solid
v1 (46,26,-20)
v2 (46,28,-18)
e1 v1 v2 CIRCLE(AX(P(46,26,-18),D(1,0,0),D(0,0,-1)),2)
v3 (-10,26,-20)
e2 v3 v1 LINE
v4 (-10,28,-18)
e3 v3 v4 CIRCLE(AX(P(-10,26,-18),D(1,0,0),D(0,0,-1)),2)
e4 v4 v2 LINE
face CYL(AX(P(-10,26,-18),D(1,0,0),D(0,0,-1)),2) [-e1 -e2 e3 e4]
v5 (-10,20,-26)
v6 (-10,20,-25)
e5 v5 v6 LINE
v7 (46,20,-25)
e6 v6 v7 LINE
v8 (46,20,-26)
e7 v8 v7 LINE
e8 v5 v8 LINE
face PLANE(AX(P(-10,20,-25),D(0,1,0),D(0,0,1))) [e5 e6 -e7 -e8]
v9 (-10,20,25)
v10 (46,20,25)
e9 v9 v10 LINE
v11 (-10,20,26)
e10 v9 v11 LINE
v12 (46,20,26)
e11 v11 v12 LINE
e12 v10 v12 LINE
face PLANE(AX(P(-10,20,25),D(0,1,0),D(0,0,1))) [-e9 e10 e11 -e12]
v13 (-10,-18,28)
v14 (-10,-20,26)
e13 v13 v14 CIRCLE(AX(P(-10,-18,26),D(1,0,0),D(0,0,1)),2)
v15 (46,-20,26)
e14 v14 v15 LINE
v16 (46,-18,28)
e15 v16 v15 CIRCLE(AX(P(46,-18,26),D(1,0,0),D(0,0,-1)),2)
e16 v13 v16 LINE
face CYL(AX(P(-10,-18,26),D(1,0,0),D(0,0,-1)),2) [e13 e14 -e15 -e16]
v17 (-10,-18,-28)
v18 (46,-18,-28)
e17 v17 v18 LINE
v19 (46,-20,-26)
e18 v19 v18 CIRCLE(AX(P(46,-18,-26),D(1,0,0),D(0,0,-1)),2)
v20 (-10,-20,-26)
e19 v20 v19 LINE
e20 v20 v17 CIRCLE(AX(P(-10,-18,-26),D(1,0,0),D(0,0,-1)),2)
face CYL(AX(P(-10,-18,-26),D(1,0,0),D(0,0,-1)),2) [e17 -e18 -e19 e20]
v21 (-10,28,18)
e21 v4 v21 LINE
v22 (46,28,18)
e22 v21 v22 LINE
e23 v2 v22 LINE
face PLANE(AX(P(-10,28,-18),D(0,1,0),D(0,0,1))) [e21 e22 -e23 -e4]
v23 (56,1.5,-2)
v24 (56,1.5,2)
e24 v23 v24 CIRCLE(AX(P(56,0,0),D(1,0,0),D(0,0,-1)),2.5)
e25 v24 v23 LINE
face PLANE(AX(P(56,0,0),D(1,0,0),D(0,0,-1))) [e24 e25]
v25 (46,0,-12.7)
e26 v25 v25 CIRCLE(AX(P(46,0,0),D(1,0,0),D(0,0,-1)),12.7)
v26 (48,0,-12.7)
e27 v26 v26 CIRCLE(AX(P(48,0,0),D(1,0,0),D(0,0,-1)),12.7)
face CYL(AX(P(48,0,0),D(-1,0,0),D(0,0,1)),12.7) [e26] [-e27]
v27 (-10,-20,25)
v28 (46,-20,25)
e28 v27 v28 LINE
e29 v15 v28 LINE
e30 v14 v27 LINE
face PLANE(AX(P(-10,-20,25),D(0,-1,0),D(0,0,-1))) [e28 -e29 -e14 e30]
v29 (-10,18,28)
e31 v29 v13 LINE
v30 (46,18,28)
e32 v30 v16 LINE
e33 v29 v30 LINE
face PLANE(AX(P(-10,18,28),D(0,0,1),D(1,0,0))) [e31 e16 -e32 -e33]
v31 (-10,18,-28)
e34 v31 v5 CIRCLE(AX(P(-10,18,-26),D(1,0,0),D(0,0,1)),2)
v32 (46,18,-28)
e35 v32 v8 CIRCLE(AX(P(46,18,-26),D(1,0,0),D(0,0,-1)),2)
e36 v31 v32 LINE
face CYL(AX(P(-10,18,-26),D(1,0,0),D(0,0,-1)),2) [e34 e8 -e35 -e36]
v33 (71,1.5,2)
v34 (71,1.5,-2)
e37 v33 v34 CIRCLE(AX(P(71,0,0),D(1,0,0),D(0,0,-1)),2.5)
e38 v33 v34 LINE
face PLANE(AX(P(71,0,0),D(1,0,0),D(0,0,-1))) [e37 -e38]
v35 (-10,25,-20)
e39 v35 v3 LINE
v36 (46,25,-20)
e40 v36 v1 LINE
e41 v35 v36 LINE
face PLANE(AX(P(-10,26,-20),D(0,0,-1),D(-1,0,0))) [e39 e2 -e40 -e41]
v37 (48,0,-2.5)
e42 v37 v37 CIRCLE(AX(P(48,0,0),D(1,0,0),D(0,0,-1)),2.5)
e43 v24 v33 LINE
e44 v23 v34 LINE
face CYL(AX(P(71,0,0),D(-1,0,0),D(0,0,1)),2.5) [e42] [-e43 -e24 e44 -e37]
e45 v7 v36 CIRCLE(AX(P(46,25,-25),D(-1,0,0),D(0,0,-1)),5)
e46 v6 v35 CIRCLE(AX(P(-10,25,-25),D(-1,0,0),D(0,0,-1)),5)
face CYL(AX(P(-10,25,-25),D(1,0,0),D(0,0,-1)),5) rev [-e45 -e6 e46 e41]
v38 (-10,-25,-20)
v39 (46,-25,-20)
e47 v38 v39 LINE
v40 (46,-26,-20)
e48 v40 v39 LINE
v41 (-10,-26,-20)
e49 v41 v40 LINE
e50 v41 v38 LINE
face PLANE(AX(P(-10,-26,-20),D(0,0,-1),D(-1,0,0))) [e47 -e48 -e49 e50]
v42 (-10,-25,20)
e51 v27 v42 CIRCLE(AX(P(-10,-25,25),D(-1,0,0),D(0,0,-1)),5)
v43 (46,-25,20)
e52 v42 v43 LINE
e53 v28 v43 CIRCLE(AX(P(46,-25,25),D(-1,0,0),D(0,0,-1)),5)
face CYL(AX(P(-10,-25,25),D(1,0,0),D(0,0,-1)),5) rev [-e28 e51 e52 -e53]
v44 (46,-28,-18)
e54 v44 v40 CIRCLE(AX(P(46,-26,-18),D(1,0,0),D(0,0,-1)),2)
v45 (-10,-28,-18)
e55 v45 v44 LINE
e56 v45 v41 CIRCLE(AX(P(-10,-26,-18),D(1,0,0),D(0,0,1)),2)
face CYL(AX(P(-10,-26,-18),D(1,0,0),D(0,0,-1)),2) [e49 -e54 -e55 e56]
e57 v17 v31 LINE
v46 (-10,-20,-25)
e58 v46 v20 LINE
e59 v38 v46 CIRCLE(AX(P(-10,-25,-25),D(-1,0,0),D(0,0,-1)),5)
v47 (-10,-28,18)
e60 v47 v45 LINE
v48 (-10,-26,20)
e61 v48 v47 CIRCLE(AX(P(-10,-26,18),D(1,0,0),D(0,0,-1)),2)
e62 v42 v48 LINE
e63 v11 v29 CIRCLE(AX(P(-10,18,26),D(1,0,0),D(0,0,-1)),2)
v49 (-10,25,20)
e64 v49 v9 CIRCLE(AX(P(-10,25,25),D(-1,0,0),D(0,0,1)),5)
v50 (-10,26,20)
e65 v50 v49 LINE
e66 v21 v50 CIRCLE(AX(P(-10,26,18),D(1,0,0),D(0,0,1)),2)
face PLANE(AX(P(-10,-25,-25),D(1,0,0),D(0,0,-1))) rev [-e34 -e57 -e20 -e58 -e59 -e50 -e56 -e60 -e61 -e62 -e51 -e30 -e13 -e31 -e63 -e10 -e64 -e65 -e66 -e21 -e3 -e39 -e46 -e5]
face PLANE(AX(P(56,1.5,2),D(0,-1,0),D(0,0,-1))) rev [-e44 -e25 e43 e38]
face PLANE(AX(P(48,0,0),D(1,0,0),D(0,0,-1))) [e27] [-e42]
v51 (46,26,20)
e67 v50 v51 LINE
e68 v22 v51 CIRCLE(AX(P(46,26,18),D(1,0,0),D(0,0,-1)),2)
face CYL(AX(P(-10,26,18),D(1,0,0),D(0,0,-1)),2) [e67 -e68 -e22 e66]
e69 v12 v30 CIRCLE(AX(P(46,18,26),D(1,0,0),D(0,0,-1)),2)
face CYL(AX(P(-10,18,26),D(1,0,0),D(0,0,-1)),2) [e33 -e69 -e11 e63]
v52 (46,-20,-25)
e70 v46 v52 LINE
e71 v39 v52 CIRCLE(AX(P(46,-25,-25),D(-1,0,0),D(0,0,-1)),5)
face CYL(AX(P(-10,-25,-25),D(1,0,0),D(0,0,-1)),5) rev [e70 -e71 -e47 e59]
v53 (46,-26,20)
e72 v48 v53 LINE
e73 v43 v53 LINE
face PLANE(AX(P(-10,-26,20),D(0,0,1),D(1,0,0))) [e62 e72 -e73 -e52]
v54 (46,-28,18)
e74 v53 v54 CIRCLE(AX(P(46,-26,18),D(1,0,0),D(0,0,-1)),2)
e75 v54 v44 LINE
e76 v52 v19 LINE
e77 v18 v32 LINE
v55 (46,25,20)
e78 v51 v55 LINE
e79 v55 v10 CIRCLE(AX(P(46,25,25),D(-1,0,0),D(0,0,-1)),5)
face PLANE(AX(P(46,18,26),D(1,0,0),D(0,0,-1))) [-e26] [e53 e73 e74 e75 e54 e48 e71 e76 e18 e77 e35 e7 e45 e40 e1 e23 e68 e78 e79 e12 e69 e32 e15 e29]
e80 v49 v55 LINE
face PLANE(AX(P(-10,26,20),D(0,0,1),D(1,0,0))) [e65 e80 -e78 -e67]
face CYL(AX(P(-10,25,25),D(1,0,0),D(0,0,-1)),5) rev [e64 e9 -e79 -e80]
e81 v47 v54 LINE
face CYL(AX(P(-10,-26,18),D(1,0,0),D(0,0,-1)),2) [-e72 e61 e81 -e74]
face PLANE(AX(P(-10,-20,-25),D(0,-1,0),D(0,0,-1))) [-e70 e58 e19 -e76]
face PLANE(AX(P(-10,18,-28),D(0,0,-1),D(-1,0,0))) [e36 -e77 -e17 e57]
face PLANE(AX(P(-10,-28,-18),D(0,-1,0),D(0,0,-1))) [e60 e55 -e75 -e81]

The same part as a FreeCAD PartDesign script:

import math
import FreeCAD as App
import Part
import Sketcher
Q = App.Units.Quantity

doc = App.newDocument("Part")
body = doc.addObject("PartDesign::Body", "Body")

sketch1 = body.newObject("Sketcher::SketchObject", "Sketch")
sketch1.AttachmentSupport = (doc.getObject("YZ_Plane"), [""])
sketch1.MapMode = "FlatFace"
sketch1.addGeometry([
    Part.LineSegment(App.Vector(26, 20, 0), App.Vector(25, 20, 0)),
    Part.ArcOfCircle(Part.Circle(App.Vector(25, 25, 0), App.Vector(0, 0, 1), 5), math.radians(180), math.radians(270)),
    Part.LineSegment(App.Vector(20, 25, 0), App.Vector(20, 26, 0)),
    Part.ArcOfCircle(Part.Circle(App.Vector(18, 26, 0), App.Vector(0, 0, 1), 2), math.radians(0), math.radians(90)),
    Part.LineSegment(App.Vector(18, 28, 0), App.Vector(-18, 28, 0)),
    Part.ArcOfCircle(Part.Circle(App.Vector(-18, 26, 0), App.Vector(0, 0, 1), 2), math.radians(90), math.radians(180)),
    Part.LineSegment(App.Vector(-20, 26, 0), App.Vector(-20, 25, 0)),
    Part.ArcOfCircle(Part.Circle(App.Vector(-25, 25, 0), App.Vector(0, 0, 1), 5), math.radians(-90), math.radians(0)),
    Part.LineSegment(App.Vector(-25, 20, 0), App.Vector(-26, 20, 0)),
    Part.ArcOfCircle(Part.Circle(App.Vector(-26, 18, 0), App.Vector(0, 0, 1), 2), math.radians(90), math.radians(180)),
    Part.LineSegment(App.Vector(-28, 18, 0), App.Vector(-28, -18, 0)),
    Part.ArcOfCircle(Part.Circle(App.Vector(-26, -18, 0), App.Vector(0, 0, 1), 2), math.radians(-180), math.radians(-90)),
    Part.LineSegment(App.Vector(-26, -20, 0), App.Vector(-25, -20, 0)),
    Part.ArcOfCircle(Part.Circle(App.Vector(-25, -25, 0), App.Vector(0, 0, 1), 5), math.radians(0), math.radians(90)),
    Part.LineSegment(App.Vector(-20, -25, 0), App.Vector(-20, -26, 0)),
    Part.ArcOfCircle(Part.Circle(App.Vector(-18, -26, 0), App.Vector(0, 0, 1), 2), math.radians(-180), math.radians(-90)),
    Part.LineSegment(App.Vector(-18, -28, 0), App.Vector(18, -28, 0)),
    Part.ArcOfCircle(Part.Circle(App.Vector(18, -26, 0), App.Vector(0, 0, 1), 2), math.radians(-90), math.radians(0)),
    Part.LineSegment(App.Vector(20, -26, 0), App.Vector(20, -25, 0)),
    Part.ArcOfCircle(Part.Circle(App.Vector(25, -25, 0), App.Vector(0, 0, 1), 5), math.radians(90), math.radians(180)),
    Part.LineSegment(App.Vector(25, -20, 0), App.Vector(26, -20, 0)),
    Part.ArcOfCircle(Part.Circle(App.Vector(26, -18, 0), App.Vector(0, 0, 1), 2), math.radians(-90), math.radians(0)),
    Part.LineSegment(App.Vector(28, -18, 0), App.Vector(28, 18, 0)),
    Part.ArcOfCircle(Part.Circle(App.Vector(26, 18, 0), App.Vector(0, 0, 1), 2), math.radians(0), math.radians(90)),
], False)
sketch1.addConstraint([
    Sketcher.Constraint("Tangent", 0, 2, 1, 2),
    Sketcher.Constraint("Tangent", 1, 1, 2, 1),
    Sketcher.Constraint("Tangent", 2, 2, 3, 1),
    Sketcher.Constraint("Tangent", 3, 2, 4, 1),
    Sketcher.Constraint("Tangent", 4, 2, 5, 1),
    Sketcher.Constraint("Tangent", 5, 2, 6, 1),
    Sketcher.Constraint("Tangent", 6, 2, 7, 2),
    Sketcher.Constraint("Tangent", 7, 1, 8, 1),
    Sketcher.Constraint("Tangent", 8, 2, 9, 1),
    Sketcher.Constraint("Tangent", 9, 2, 10, 1),
    Sketcher.Constraint("Tangent", 10, 2, 11, 1),
    Sketcher.Constraint("Tangent", 11, 2, 12, 1),
    Sketcher.Constraint("Tangent", 12, 2, 13, 2),
    Sketcher.Constraint("Tangent", 13, 1, 14, 1),
    Sketcher.Constraint("Tangent", 14, 2, 15, 1),
    Sketcher.Constraint("Tangent", 15, 2, 16, 1),
    Sketcher.Constraint("Tangent", 16, 2, 17, 1),
    Sketcher.Constraint("Tangent", 17, 2, 18, 1),
    Sketcher.Constraint("Tangent", 18, 2, 19, 2),
    Sketcher.Constraint("Tangent", 19, 1, 20, 1),
    Sketcher.Constraint("Tangent", 20, 2, 21, 1),
    Sketcher.Constraint("Tangent", 21, 2, 22, 1),
    Sketcher.Constraint("Tangent", 22, 2, 23, 1),
    Sketcher.Constraint("Tangent", 23, 2, 0, 1),
    Sketcher.Constraint("Horizontal", 0),
    Sketcher.Constraint("Vertical", 2),
    Sketcher.Constraint("Horizontal", 4),
    Sketcher.Constraint("Vertical", 6),
    Sketcher.Constraint("Horizontal", 8),
    Sketcher.Constraint("Vertical", 10),
    Sketcher.Constraint("Horizontal", 12),
    Sketcher.Constraint("Vertical", 14),
    Sketcher.Constraint("Horizontal", 16),
    Sketcher.Constraint("Vertical", 18),
    Sketcher.Constraint("Horizontal", 20),
    Sketcher.Constraint("Vertical", 22),
    Sketcher.Constraint("Equal", 3, 5),
    Sketcher.Constraint("Equal", 1, 7),
    Sketcher.Constraint("Equal", 5, 9),
    Sketcher.Constraint("Equal", 9, 11),
    Sketcher.Constraint("Equal", 7, 13),
    Sketcher.Constraint("Equal", 11, 15),
    Sketcher.Constraint("Equal", 15, 17),
    Sketcher.Constraint("Equal", 13, 19),
    Sketcher.Constraint("Equal", 17, 21),
    Sketcher.Constraint("Equal", 21, 23),
    Sketcher.Constraint("Symmetric", 1, 3, 13, 3, -1, 1),
    Sketcher.Constraint("Symmetric", 5, 3, 17, 3, -1, 1),
    Sketcher.Constraint("Symmetric", 9, 3, 21, 3, -1, 1),
    Sketcher.Constraint("Symmetric", 1, 3, 7, 3, -2),
    Sketcher.Constraint("Equal", 20, 2),
    Sketcher.Constraint("Equal", 16, 10),
    Sketcher.Constraint("Radius", 1, Q("5 mm")),
    Sketcher.Constraint("Radius", 3, Q("2 mm")),
    Sketcher.Constraint("DistanceX", 0, 2, 0, 1, Q("1 mm")),
    Sketcher.Constraint("DistanceX", 4, 2, 4, 1, Q("36 mm")),
])
pad1 = body.newObject("PartDesign::Pad", "Pad")
pad1.Profile = sketch1
pad1.Length = 10
pad1.Reversed = True

sketch2 = body.newObject("Sketcher::SketchObject", "Sketch001")
sketch2.AttachmentSupport = (doc.getObject("YZ_Plane"), [""])
sketch2.MapMode = "FlatFace"
sketch2.AttachmentOffset = App.Placement(App.Vector(0, 0, 36), App.Rotation())
sketch2.addGeometry([
    Part.LineSegment(App.Vector(-26, -20, 0), App.Vector(-25, -20, 0)),
    Part.ArcOfCircle(Part.Circle(App.Vector(-25, -25, 0), App.Vector(0, 0, 1), 5), math.radians(0), math.radians(90)),
    Part.LineSegment(App.Vector(-20, -25, 0), App.Vector(-20, -26, 0)),
    Part.ArcOfCircle(Part.Circle(App.Vector(-18, -26, 0), App.Vector(0, 0, 1), 2), math.radians(-180), math.radians(-90)),
    Part.LineSegment(App.Vector(-18, -28, 0), App.Vector(18, -28, 0)),
    Part.ArcOfCircle(Part.Circle(App.Vector(18, -26, 0), App.Vector(0, 0, 1), 2), math.radians(-90), math.radians(0)),
    Part.LineSegment(App.Vector(20, -26, 0), App.Vector(20, -25, 0)),
    Part.ArcOfCircle(Part.Circle(App.Vector(25, -25, 0), App.Vector(0, 0, 1), 5), math.radians(90), math.radians(180)),
    Part.LineSegment(App.Vector(25, -20, 0), App.Vector(26, -20, 0)),
    Part.ArcOfCircle(Part.Circle(App.Vector(26, -18, 0), App.Vector(0, 0, 1), 2), math.radians(-90), math.radians(0)),
    Part.LineSegment(App.Vector(28, -18, 0), App.Vector(28, 18, 0)),
    Part.ArcOfCircle(Part.Circle(App.Vector(26, 18, 0), App.Vector(0, 0, 1), 2), math.radians(0), math.radians(90)),
    Part.LineSegment(App.Vector(26, 20, 0), App.Vector(25, 20, 0)),
    Part.ArcOfCircle(Part.Circle(App.Vector(25, 25, 0), App.Vector(0, 0, 1), 5), math.radians(180), math.radians(270)),
    Part.LineSegment(App.Vector(20, 25, 0), App.Vector(20, 26, 0)),
    Part.ArcOfCircle(Part.Circle(App.Vector(18, 26, 0), App.Vector(0, 0, 1), 2), math.radians(0), math.radians(90)),
    Part.LineSegment(App.Vector(18, 28, 0), App.Vector(-18, 28, 0)),
    Part.ArcOfCircle(Part.Circle(App.Vector(-18, 26, 0), App.Vector(0, 0, 1), 2), math.radians(90), math.radians(180)),
    Part.LineSegment(App.Vector(-20, 26, 0), App.Vector(-20, 25, 0)),
    Part.ArcOfCircle(Part.Circle(App.Vector(-25, 25, 0), App.Vector(0, 0, 1), 5), math.radians(-90), math.radians(0)),
    Part.LineSegment(App.Vector(-25, 20, 0), App.Vector(-26, 20, 0)),
    Part.ArcOfCircle(Part.Circle(App.Vector(-26, 18, 0), App.Vector(0, 0, 1), 2), math.radians(90), math.radians(180)),
    Part.LineSegment(App.Vector(-28, 18, 0), App.Vector(-28, -18, 0)),
    Part.ArcOfCircle(Part.Circle(App.Vector(-26, -18, 0), App.Vector(0, 0, 1), 2), math.radians(-180), math.radians(-90)),
], False)
sketch2.addConstraint([
    Sketcher.Constraint("Tangent", 0, 2, 1, 2),
    Sketcher.Constraint("Tangent", 1, 1, 2, 1),
    Sketcher.Constraint("Tangent", 2, 2, 3, 1),
    Sketcher.Constraint("Tangent", 3, 2, 4, 1),
    Sketcher.Constraint("Tangent", 4, 2, 5, 1),
    Sketcher.Constraint("Tangent", 5, 2, 6, 1),
    Sketcher.Constraint("Tangent", 6, 2, 7, 2),
    Sketcher.Constraint("Tangent", 7, 1, 8, 1),
    Sketcher.Constraint("Tangent", 8, 2, 9, 1),
    Sketcher.Constraint("Tangent", 9, 2, 10, 1),
    Sketcher.Constraint("Tangent", 10, 2, 11, 1),
    Sketcher.Constraint("Tangent", 11, 2, 12, 1),
    Sketcher.Constraint("Tangent", 12, 2, 13, 2),
    Sketcher.Constraint("Tangent", 13, 1, 14, 1),
    Sketcher.Constraint("Tangent", 14, 2, 15, 1),
    Sketcher.Constraint("Tangent", 15, 2, 16, 1),
    Sketcher.Constraint("Tangent", 16, 2, 17, 1),
    Sketcher.Constraint("Tangent", 17, 2, 18, 1),
    Sketcher.Constraint("Tangent", 18, 2, 19, 2),
    Sketcher.Constraint("Tangent", 19, 1, 20, 1),
    Sketcher.Constraint("Tangent", 20, 2, 21, 1),
    Sketcher.Constraint("Tangent", 21, 2, 22, 1),
    Sketcher.Constraint("Tangent", 22, 2, 23, 1),
    Sketcher.Constraint("Tangent", 23, 2, 0, 1),
    Sketcher.Constraint("Horizontal", 0),
    Sketcher.Constraint("Vertical", 2),
    Sketcher.Constraint("Horizontal", 4),
    Sketcher.Constraint("Vertical", 6),
    Sketcher.Constraint("Horizontal", 8),
    Sketcher.Constraint("Vertical", 10),
    Sketcher.Constraint("Horizontal", 12),
    Sketcher.Constraint("Vertical", 14),
    Sketcher.Constraint("Horizontal", 16),
    Sketcher.Constraint("Vertical", 18),
    Sketcher.Constraint("Horizontal", 20),
    Sketcher.Constraint("Vertical", 22),
    Sketcher.Constraint("Equal", 3, 5),
    Sketcher.Constraint("Equal", 1, 7),
    Sketcher.Constraint("Equal", 5, 9),
    Sketcher.Constraint("Equal", 9, 11),
    Sketcher.Constraint("Equal", 7, 13),
    Sketcher.Constraint("Equal", 11, 15),
    Sketcher.Constraint("Equal", 15, 17),
    Sketcher.Constraint("Equal", 13, 19),
    Sketcher.Constraint("Equal", 17, 21),
    Sketcher.Constraint("Equal", 21, 23),
    Sketcher.Constraint("Symmetric", 1, 3, 13, 3, -1, 1),
    Sketcher.Constraint("Symmetric", 5, 3, 17, 3, -1, 1),
    Sketcher.Constraint("Symmetric", 9, 3, 21, 3, -1, 1),
    Sketcher.Constraint("Symmetric", 1, 3, 7, 3, -2),
    Sketcher.Constraint("Equal", 20, 2),
    Sketcher.Constraint("Equal", 16, 10),
    Sketcher.Constraint("Radius", 1, Q("5 mm")),
    Sketcher.Constraint("Radius", 3, Q("2 mm")),
    Sketcher.Constraint("DistanceX", 0, 1, 0, 2, Q("1 mm")),
    Sketcher.Constraint("DistanceX", 4, 1, 4, 2, Q("36 mm")),
])
pad2 = body.newObject("PartDesign::Pad", "Pad001")
pad2.Profile = sketch2
pad2.Length = 36
pad2.Reversed = True

sketch3 = body.newObject("Sketcher::SketchObject", "Sketch002")
sketch3.AttachmentSupport = (doc.getObject("YZ_Plane"), [""])
sketch3.MapMode = "FlatFace"
sketch3.AttachmentOffset = App.Placement(App.Vector(0, 0, 46), App.Rotation())
sketch3.addGeometry([
    Part.LineSegment(App.Vector(-20, 26, 0), App.Vector(-20, 25, 0)),
    Part.ArcOfCircle(Part.Circle(App.Vector(-25, 25, 0), App.Vector(0, 0, 1), 5), math.radians(-90), math.radians(0)),
    Part.LineSegment(App.Vector(-25, 20, 0), App.Vector(-26, 20, 0)),
    Part.ArcOfCircle(Part.Circle(App.Vector(-26, 18, 0), App.Vector(0, 0, 1), 2), math.radians(90), math.radians(180)),
    Part.LineSegment(App.Vector(-28, 18, 0), App.Vector(-28, -18, 0)),
    Part.ArcOfCircle(Part.Circle(App.Vector(-26, -18, 0), App.Vector(0, 0, 1), 2), math.radians(-180), math.radians(-90)),
    Part.LineSegment(App.Vector(-26, -20, 0), App.Vector(-25, -20, 0)),
    Part.ArcOfCircle(Part.Circle(App.Vector(-25, -25, 0), App.Vector(0, 0, 1), 5), math.radians(0), math.radians(90)),
    Part.LineSegment(App.Vector(-20, -25, 0), App.Vector(-20, -26, 0)),
    Part.ArcOfCircle(Part.Circle(App.Vector(-18, -26, 0), App.Vector(0, 0, 1), 2), math.radians(-180), math.radians(-90)),
    Part.LineSegment(App.Vector(-18, -28, 0), App.Vector(18, -28, 0)),
    Part.ArcOfCircle(Part.Circle(App.Vector(18, -26, 0), App.Vector(0, 0, 1), 2), math.radians(-90), math.radians(0)),
    Part.LineSegment(App.Vector(20, -26, 0), App.Vector(20, -25, 0)),
    Part.ArcOfCircle(Part.Circle(App.Vector(25, -25, 0), App.Vector(0, 0, 1), 5), math.radians(90), math.radians(180)),
    Part.LineSegment(App.Vector(25, -20, 0), App.Vector(26, -20, 0)),
    Part.ArcOfCircle(Part.Circle(App.Vector(26, -18, 0), App.Vector(0, 0, 1), 2), math.radians(-90), math.radians(0)),
    Part.LineSegment(App.Vector(28, -18, 0), App.Vector(28, 18, 0)),
    Part.ArcOfCircle(Part.Circle(App.Vector(26, 18, 0), App.Vector(0, 0, 1), 2), math.radians(0), math.radians(90)),
    Part.LineSegment(App.Vector(26, 20, 0), App.Vector(25, 20, 0)),
    Part.ArcOfCircle(Part.Circle(App.Vector(25, 25, 0), App.Vector(0, 0, 1), 5), math.radians(180), math.radians(270)),
    Part.LineSegment(App.Vector(20, 25, 0), App.Vector(20, 26, 0)),
    Part.ArcOfCircle(Part.Circle(App.Vector(18, 26, 0), App.Vector(0, 0, 1), 2), math.radians(0), math.radians(90)),
    Part.LineSegment(App.Vector(18, 28, 0), App.Vector(-18, 28, 0)),
    Part.ArcOfCircle(Part.Circle(App.Vector(-18, 26, 0), App.Vector(0, 0, 1), 2), math.radians(90), math.radians(180)),
], False)
sketch3.addConstraint([
    Sketcher.Constraint("Tangent", 0, 2, 1, 2),
    Sketcher.Constraint("Tangent", 1, 1, 2, 1),
    Sketcher.Constraint("Tangent", 2, 2, 3, 1),
    Sketcher.Constraint("Tangent", 3, 2, 4, 1),
    Sketcher.Constraint("Tangent", 4, 2, 5, 1),
    Sketcher.Constraint("Tangent", 5, 2, 6, 1),
    Sketcher.Constraint("Tangent", 6, 2, 7, 2),
    Sketcher.Constraint("Tangent", 7, 1, 8, 1),
    Sketcher.Constraint("Tangent", 8, 2, 9, 1),
    Sketcher.Constraint("Tangent", 9, 2, 10, 1),
    Sketcher.Constraint("Tangent", 10, 2, 11, 1),
    Sketcher.Constraint("Tangent", 11, 2, 12, 1),
    Sketcher.Constraint("Tangent", 12, 2, 13, 2),
    Sketcher.Constraint("Tangent", 13, 1, 14, 1),
    Sketcher.Constraint("Tangent", 14, 2, 15, 1),
    Sketcher.Constraint("Tangent", 15, 2, 16, 1),
    Sketcher.Constraint("Tangent", 16, 2, 17, 1),
    Sketcher.Constraint("Tangent", 17, 2, 18, 1),
    Sketcher.Constraint("Tangent", 18, 2, 19, 2),
    Sketcher.Constraint("Tangent", 19, 1, 20, 1),
    Sketcher.Constraint("Tangent", 20, 2, 21, 1),
    Sketcher.Constraint("Tangent", 21, 2, 22, 1),
    Sketcher.Constraint("Tangent", 22, 2, 23, 1),
    Sketcher.Constraint("Tangent", 23, 2, 0, 1),
    Sketcher.Constraint("Vertical", 0),
    Sketcher.Constraint("Horizontal", 2),
    Sketcher.Constraint("Vertical", 4),
    Sketcher.Constraint("Horizontal", 6),
    Sketcher.Constraint("Vertical", 8),
    Sketcher.Constraint("Horizontal", 10),
    Sketcher.Constraint("Vertical", 12),
    Sketcher.Constraint("Horizontal", 14),
    Sketcher.Constraint("Vertical", 16),
    Sketcher.Constraint("Horizontal", 18),
    Sketcher.Constraint("Vertical", 20),
    Sketcher.Constraint("Horizontal", 22),
    Sketcher.Constraint("Equal", 3, 5),
    Sketcher.Constraint("Equal", 1, 7),
    Sketcher.Constraint("Equal", 5, 9),
    Sketcher.Constraint("Equal", 9, 11),
    Sketcher.Constraint("Equal", 7, 13),
    Sketcher.Constraint("Equal", 11, 15),
    Sketcher.Constraint("Equal", 15, 17),
    Sketcher.Constraint("Equal", 13, 19),
    Sketcher.Constraint("Equal", 17, 21),
    Sketcher.Constraint("Equal", 21, 23),
    Sketcher.Constraint("Symmetric", 1, 3, 13, 3, -1, 1),
    Sketcher.Constraint("Symmetric", 5, 3, 17, 3, -1, 1),
    Sketcher.Constraint("Symmetric", 9, 3, 21, 3, -1, 1),
    Sketcher.Constraint("Symmetric", 7, 3, 13, 3, -2),
    Sketcher.Constraint("Equal", 18, 0),
    Sketcher.Constraint("Equal", 22, 4),
    Sketcher.Constraint("Radius", 1, Q("5 mm")),
    Sketcher.Constraint("Radius", 3, Q("2 mm")),
    Sketcher.Constraint("DistanceX", 2, 2, 2, 1, Q("1 mm")),
    Sketcher.Constraint("DistanceX", 10, 1, 10, 2, Q("36 mm")),
])
pad3 = body.newObject("PartDesign::Pad", "Pad002")
pad3.Profile = sketch3
pad3.Length = 10
pad3.Reversed = True

sketch4 = body.newObject("Sketcher::SketchObject", "Sketch003")
sketch4.AttachmentSupport = (doc.getObject("YZ_Plane"), [""])
sketch4.MapMode = "FlatFace"
sketch4.AttachmentOffset = App.Placement(App.Vector(0, 0, 46), App.Rotation())
sketch4.addGeometry(Part.Circle(App.Vector(0, 0, 0), App.Vector(0, 0, 1), 2.5), False)
sketch4.addConstraint([
    Sketcher.Constraint("Coincident", 0, 3, -1, 1),
    Sketcher.Constraint("Diameter", 0, Q("5 mm")),
])
pad4 = body.newObject("PartDesign::Pad", "Pad003")
pad4.Profile = sketch4
pad4.Length = 25

sketch5 = body.newObject("Sketcher::SketchObject", "Sketch004")
sketch5.AttachmentSupport = (doc.getObject("YZ_Plane"), [""])
sketch5.MapMode = "FlatFace"
sketch5.AttachmentOffset = App.Placement(App.Vector(0, 0, 46), App.Rotation())
sketch5.addGeometry(Part.Circle(App.Vector(0, 0, 0), App.Vector(0, 0, 1), 13), False)
sketch5.addConstraint([
    Sketcher.Constraint("Coincident", 0, 3, -1, 1),
    Sketcher.Constraint("Diameter", 0, Q("25.4 mm")),
])
pad5 = body.newObject("PartDesign::Pad", "Pad004")
pad5.Profile = sketch5
pad5.Length = 2

sketch6 = body.newObject("Sketcher::SketchObject", "Sketch005")
sketch6.AttachmentSupport = (doc.getObject("YZ_Plane"), [""])
sketch6.MapMode = "FlatFace"
sketch6.AttachmentOffset = App.Placement(App.Vector(0, 0, 56), App.Rotation())
sketch6.addGeometry([
    Part.LineSegment(App.Vector(1.5, 2, 0), App.Vector(1.5, -2, 0)),
    Part.ArcOfCircle(Part.Circle(App.Vector(0, 0, 0), App.Vector(0, 0, 1), 2.5), math.radians(-53), math.radians(53)),
], False)
sketch6.addConstraint([
    Sketcher.Constraint("Coincident", 0, 1, 1, 2),
    Sketcher.Constraint("Coincident", 1, 1, 0, 2),
    Sketcher.Constraint("Vertical", 0),
    Sketcher.Constraint("Coincident", 1, 3, -1, 1),
    Sketcher.Constraint("Radius", 1, Q("2.5 mm")),
    Sketcher.Constraint("DistanceY", 0, 2, 0, 1, Q("4 mm")),
])
pocket1 = body.newObject("PartDesign::Pocket", "Pocket")
pocket1.Profile = sketch6
pocket1.Length = 15
pocket1.Reversed = True

doc.recompute()
